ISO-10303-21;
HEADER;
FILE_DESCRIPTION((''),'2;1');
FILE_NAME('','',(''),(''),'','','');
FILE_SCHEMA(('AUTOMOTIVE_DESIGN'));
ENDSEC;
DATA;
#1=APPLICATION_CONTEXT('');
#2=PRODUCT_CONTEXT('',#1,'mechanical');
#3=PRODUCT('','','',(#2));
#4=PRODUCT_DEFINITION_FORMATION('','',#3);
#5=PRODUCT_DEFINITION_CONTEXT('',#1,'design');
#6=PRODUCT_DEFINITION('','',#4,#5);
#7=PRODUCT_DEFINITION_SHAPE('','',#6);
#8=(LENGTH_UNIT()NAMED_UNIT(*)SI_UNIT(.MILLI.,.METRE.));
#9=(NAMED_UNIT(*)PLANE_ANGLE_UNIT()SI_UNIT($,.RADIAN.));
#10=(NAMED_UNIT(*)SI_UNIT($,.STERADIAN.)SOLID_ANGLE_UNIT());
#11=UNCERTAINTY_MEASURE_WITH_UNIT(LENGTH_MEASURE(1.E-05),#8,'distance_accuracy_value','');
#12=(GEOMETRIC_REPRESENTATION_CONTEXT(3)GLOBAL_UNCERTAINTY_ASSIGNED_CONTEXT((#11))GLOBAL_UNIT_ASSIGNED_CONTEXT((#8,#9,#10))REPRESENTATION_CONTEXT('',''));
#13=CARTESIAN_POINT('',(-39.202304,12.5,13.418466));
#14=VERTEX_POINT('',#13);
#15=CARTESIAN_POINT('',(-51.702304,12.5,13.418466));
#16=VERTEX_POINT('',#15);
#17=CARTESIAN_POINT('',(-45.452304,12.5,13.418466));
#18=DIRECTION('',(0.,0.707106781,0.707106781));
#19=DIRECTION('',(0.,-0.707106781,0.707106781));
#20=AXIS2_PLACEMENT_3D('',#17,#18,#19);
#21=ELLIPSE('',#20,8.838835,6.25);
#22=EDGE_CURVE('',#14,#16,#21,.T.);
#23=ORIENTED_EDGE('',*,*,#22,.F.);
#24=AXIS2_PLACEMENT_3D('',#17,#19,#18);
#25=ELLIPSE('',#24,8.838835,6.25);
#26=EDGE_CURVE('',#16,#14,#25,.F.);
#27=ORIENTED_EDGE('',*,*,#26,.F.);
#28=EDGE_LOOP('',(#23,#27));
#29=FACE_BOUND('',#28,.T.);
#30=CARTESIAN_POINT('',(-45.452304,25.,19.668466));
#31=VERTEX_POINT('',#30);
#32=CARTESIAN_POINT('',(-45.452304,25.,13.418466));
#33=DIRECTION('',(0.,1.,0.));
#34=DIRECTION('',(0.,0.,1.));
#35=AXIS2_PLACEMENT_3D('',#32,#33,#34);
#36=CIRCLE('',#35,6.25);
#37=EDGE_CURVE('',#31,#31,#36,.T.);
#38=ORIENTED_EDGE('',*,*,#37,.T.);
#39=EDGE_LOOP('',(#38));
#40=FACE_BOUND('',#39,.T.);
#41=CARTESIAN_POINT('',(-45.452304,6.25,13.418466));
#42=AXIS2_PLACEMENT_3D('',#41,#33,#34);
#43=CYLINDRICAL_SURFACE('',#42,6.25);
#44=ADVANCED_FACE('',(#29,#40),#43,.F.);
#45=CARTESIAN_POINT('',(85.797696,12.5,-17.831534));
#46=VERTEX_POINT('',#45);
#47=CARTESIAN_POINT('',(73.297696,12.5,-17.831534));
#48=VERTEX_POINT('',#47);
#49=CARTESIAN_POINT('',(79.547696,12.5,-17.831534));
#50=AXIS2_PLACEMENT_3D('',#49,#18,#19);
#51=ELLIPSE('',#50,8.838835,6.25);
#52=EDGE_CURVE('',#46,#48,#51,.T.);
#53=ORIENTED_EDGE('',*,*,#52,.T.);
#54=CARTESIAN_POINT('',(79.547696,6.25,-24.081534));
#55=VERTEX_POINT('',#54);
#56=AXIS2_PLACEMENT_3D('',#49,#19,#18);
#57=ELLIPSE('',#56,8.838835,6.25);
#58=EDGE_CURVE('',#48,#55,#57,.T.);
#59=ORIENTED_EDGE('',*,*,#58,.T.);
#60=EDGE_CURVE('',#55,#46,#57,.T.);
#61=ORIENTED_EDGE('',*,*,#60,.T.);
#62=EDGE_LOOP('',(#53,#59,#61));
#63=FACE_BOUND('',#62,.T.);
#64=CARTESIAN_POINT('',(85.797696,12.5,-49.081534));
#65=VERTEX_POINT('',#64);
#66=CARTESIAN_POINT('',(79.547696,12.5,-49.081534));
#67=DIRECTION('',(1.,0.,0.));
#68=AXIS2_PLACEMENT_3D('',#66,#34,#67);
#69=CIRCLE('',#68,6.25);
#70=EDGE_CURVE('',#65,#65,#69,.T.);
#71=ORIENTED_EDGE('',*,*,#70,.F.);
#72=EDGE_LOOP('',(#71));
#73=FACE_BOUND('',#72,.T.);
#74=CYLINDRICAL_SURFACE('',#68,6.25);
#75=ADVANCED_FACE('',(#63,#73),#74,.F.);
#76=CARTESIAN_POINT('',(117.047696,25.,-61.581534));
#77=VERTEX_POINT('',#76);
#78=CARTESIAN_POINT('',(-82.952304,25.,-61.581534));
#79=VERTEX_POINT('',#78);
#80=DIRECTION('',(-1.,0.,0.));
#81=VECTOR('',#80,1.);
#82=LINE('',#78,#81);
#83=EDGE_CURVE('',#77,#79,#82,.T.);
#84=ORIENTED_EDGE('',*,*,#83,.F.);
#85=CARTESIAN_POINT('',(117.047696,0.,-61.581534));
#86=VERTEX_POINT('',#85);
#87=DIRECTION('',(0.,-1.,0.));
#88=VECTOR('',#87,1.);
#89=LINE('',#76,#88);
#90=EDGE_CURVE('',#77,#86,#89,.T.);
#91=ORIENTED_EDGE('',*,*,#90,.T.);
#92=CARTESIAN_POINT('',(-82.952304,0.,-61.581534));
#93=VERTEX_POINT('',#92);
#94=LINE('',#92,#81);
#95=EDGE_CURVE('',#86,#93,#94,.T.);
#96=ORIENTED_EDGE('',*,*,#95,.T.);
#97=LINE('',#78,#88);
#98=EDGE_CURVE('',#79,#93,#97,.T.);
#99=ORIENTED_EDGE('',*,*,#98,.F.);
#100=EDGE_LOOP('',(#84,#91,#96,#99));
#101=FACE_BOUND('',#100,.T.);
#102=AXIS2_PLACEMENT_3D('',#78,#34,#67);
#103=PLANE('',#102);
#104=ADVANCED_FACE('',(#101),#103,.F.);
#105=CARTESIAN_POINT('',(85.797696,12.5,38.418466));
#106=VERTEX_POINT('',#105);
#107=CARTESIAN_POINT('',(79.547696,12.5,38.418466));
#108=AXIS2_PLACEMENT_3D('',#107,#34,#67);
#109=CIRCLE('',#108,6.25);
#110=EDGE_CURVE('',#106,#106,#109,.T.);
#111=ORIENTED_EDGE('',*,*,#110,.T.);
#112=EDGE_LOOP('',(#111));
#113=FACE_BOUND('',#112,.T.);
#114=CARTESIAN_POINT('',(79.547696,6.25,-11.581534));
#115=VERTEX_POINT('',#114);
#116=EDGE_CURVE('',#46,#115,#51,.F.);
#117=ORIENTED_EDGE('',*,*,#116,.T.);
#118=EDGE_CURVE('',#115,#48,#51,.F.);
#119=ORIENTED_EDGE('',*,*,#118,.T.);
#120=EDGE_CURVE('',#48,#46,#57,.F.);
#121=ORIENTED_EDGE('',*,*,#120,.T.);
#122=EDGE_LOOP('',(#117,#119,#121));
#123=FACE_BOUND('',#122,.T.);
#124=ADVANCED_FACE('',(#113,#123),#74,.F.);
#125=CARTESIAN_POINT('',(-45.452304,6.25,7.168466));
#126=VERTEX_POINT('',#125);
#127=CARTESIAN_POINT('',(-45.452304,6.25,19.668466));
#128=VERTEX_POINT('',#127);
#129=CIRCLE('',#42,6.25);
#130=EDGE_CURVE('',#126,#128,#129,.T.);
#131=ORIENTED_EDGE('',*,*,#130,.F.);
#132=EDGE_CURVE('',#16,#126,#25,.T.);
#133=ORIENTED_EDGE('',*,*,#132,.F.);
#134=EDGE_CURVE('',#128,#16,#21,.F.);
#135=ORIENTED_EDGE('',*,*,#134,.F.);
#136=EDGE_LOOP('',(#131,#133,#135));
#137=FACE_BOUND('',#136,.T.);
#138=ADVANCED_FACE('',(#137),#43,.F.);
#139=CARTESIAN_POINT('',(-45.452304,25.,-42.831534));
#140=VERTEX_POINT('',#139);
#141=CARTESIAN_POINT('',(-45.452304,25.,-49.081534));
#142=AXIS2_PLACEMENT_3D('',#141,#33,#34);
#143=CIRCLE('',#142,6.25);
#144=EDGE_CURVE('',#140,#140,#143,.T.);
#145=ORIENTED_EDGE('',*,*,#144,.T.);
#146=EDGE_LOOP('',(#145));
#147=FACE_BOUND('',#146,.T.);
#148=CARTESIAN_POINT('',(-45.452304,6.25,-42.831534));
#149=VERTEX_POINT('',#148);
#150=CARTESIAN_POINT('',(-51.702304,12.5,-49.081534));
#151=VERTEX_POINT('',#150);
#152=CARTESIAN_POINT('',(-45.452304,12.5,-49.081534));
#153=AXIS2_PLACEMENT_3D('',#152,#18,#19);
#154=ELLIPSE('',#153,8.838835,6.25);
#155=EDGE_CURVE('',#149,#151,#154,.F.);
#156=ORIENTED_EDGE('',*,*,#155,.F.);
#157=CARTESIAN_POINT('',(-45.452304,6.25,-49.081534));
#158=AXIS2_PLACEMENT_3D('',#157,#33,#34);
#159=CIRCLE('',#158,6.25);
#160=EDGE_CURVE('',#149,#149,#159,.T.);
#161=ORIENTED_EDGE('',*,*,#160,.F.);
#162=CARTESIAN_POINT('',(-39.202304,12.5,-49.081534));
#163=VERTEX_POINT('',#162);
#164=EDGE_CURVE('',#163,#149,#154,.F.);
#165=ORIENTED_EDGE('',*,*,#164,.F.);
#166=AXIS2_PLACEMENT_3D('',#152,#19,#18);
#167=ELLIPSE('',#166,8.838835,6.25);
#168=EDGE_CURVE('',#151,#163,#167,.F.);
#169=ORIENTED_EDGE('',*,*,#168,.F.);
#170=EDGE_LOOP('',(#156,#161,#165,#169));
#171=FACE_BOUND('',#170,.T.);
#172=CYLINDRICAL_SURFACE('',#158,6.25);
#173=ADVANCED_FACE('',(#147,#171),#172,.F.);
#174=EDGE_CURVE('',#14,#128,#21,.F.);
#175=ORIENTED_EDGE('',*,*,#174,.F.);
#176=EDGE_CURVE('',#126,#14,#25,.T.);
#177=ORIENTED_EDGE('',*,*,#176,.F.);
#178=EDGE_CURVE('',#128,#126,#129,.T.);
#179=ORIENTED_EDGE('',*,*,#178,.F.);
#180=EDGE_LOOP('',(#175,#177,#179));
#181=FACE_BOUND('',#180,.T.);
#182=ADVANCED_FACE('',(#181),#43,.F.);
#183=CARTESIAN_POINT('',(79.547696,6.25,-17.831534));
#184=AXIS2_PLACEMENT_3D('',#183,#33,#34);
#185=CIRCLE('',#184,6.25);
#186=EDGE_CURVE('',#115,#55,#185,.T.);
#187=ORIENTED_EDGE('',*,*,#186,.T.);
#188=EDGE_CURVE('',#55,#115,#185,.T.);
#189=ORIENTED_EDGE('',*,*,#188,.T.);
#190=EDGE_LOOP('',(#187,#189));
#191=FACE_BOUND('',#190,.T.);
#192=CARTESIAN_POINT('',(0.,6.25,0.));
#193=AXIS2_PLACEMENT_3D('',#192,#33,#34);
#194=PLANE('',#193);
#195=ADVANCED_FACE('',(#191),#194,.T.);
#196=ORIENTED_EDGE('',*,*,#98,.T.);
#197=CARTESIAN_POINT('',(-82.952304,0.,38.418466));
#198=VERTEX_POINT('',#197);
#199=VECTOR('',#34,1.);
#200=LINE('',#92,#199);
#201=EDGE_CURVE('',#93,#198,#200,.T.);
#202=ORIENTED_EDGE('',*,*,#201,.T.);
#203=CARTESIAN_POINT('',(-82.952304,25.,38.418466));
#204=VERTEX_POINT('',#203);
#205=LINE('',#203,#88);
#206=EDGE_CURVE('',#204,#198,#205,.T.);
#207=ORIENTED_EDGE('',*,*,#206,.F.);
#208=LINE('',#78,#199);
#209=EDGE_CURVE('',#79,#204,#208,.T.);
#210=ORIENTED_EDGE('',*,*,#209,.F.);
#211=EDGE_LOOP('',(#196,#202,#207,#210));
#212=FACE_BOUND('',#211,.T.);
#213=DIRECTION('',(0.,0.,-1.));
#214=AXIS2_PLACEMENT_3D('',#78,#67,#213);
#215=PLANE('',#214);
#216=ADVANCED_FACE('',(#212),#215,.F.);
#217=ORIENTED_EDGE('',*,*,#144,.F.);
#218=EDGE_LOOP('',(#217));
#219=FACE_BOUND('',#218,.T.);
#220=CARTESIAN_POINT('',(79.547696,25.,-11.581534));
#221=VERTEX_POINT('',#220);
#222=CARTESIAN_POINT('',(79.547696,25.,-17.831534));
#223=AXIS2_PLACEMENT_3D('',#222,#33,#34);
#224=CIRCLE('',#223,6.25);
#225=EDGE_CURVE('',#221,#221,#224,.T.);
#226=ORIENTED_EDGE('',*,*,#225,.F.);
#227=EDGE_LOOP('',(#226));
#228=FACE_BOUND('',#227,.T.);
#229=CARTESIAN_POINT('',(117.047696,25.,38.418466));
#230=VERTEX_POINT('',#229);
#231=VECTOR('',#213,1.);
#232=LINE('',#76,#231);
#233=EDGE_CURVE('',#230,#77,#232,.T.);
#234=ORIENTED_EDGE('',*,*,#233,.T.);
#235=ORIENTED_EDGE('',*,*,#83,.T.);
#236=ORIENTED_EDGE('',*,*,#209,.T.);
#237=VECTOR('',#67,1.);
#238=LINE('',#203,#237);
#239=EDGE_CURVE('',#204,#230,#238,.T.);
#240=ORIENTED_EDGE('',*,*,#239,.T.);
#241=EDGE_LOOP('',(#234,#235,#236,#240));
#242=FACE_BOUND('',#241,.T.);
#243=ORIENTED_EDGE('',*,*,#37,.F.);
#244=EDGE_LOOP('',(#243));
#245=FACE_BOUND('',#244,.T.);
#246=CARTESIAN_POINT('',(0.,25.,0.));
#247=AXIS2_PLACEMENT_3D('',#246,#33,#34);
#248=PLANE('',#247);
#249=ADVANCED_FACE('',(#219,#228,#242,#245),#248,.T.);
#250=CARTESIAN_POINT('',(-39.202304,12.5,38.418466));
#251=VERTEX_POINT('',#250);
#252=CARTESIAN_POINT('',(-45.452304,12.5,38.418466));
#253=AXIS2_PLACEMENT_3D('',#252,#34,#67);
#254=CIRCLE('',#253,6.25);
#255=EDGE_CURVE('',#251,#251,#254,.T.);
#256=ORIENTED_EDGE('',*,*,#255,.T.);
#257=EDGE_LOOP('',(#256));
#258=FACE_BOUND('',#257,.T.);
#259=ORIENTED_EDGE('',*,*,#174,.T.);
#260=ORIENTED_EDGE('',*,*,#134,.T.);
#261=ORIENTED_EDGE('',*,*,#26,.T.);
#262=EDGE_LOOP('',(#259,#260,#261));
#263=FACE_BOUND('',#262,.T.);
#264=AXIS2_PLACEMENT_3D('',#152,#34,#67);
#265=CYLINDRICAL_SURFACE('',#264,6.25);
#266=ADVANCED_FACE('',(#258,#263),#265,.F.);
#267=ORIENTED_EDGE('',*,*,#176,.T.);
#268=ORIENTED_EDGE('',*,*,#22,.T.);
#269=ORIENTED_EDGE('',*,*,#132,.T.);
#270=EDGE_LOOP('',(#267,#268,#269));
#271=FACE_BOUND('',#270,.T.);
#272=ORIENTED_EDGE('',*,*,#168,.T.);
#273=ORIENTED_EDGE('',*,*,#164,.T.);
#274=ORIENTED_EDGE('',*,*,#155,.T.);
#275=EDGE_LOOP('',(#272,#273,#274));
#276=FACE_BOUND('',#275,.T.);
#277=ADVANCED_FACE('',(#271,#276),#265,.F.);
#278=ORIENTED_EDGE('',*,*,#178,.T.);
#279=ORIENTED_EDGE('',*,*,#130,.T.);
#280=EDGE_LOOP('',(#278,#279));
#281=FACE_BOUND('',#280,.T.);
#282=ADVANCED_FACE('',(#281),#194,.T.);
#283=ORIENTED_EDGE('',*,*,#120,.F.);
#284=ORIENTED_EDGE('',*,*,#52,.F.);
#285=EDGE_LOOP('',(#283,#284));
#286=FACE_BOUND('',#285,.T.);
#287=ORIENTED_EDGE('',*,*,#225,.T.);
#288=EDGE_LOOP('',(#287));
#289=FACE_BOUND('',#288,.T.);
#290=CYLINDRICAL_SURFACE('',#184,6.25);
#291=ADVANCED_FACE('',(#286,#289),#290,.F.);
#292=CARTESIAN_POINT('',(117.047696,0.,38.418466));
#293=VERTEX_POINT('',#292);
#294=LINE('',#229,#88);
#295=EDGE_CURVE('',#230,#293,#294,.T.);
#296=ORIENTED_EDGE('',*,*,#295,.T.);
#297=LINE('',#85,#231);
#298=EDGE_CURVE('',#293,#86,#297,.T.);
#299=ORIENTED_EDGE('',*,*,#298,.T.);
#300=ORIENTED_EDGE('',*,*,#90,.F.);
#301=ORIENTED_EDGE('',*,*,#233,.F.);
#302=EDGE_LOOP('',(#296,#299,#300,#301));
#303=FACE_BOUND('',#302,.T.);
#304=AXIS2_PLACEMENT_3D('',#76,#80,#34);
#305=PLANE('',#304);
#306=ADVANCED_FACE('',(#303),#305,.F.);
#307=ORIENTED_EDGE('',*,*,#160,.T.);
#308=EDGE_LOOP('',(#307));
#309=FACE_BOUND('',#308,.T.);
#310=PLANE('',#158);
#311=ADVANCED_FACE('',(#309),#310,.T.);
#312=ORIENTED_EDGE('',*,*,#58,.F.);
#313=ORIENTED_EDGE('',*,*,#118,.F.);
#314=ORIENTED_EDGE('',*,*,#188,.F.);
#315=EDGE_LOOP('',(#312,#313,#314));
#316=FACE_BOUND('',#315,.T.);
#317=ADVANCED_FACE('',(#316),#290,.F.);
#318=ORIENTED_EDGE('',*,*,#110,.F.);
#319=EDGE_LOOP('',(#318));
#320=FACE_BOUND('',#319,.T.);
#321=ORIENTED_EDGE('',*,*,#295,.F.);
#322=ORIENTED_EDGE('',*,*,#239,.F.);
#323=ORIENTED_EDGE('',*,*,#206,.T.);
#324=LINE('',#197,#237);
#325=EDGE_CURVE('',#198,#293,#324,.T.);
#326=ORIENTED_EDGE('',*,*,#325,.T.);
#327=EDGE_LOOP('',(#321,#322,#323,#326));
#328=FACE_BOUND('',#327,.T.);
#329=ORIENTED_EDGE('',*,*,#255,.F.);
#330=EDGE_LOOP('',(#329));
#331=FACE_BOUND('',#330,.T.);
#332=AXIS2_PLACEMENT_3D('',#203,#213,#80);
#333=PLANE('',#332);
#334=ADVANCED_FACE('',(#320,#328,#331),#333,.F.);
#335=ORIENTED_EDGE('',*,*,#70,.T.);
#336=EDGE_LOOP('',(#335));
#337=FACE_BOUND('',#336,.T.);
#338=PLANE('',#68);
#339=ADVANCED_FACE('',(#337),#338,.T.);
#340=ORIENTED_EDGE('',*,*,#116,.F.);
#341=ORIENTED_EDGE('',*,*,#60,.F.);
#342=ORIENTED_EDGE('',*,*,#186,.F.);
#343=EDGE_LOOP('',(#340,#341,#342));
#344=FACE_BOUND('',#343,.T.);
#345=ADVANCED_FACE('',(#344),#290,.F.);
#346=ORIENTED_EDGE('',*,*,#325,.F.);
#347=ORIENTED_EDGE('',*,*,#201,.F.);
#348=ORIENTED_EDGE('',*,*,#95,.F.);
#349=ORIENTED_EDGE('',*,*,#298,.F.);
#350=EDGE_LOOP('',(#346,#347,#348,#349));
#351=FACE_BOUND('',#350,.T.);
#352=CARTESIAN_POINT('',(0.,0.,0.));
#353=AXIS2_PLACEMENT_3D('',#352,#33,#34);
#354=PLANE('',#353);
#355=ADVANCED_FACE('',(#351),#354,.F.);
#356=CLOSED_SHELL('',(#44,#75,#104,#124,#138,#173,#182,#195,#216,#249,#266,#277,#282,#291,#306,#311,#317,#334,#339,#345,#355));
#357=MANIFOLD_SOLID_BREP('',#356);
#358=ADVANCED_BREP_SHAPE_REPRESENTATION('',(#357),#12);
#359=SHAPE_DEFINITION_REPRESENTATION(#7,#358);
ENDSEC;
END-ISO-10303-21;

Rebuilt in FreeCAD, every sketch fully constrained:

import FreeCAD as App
import Part
import Sketcher
from FreeCAD import Vector


def add_polygon(sketch, points):
    """Adds a closed chain of lines whose ends are joined by coincident constraints."""
    first, n = sketch.GeometryCount, len(points)
    for a, b in zip(points, points[1:] + points[:1]):
        sketch.addGeometry(Part.LineSegment(App.Vector(*a, 0), App.Vector(*b, 0)), False)
    for i in range(n):
        sketch.addConstraint(Sketcher.Constraint("Coincident", first + i, 2, first + (i + 1) % n, 1))

doc = App.newDocument("Part")
body = doc.addObject("PartDesign::Body", "Body")

sketch1 = doc.addObject("Sketcher::SketchObject", "Sketch")
body.addObject(sketch1)
sketch1.AttachmentSupport = (doc.XZ_Plane, [""])
sketch1.MapMode = "FlatFace"
add_polygon(sketch1, [(-83, -62), (-83, 38), (117, 38), (117, -62)])
sketch1.addConstraint([
    Sketcher.Constraint("Vertical", 0),
    Sketcher.Constraint("Horizontal", 1),
    Sketcher.Constraint("Vertical", 2),
    Sketcher.Constraint("Horizontal", 3),
    Sketcher.Constraint("DistanceX", 1, 1, 1, 2, 200.0),
    Sketcher.Constraint("DistanceY", 0, 1, 0, 2, 100.0),
    Sketcher.Constraint("DistanceX", 0, 2, -1, 1, 82.952304),
    Sketcher.Constraint("DistanceY", -1, 1, 0, 2, 38.418466),
])
pad1 = doc.addObject("PartDesign::Pad", "Pad")
body.addObject(pad1)
pad1.Profile = sketch1
pad1.Length = 25
pad1.Reversed = True

sketch2 = doc.addObject("Sketcher::SketchObject", "Sketch001")
body.addObject(sketch2)
sketch2.AttachmentSupport = (doc.XY_Plane, [""])
sketch2.MapMode = "FlatFace"
sketch2.AttachmentOffset = App.Placement(Vector(0, 0, 38.418466), App.Rotation())
sketch2.addGeometry([
    Part.Circle(Vector(-45, 12, 0), Vector(0, 0, 1), 6),
    Part.Circle(Vector(80, 12, 0), Vector(0, 0, 1), 6),
], False)
sketch2.addConstraint([
    Sketcher.Constraint("Equal", 0, 1),
    Sketcher.Constraint("Horizontal", 0, 3, 1, 3),
    Sketcher.Constraint("Diameter", 0, 12.5),
    Sketcher.Constraint("DistanceX", 0, 3, 1, 3, 125.0),
    Sketcher.Constraint("DistanceY", -1, 1, 0, 3, 12.5),
    Sketcher.Constraint("DistanceX", 0, 3, -1, 1, 45.452304),
])
pocket1 = doc.addObject("PartDesign::Pocket", "Pocket")
body.addObject(pocket1)
pocket1.Profile = sketch2
pocket1.Length = 87.5

sketch3 = doc.addObject("Sketcher::SketchObject", "Sketch002")
body.addObject(sketch3)
sketch3.AttachmentSupport = (doc.XZ_Plane, [""])
sketch3.MapMode = "FlatFace"
sketch3.AttachmentOffset = App.Placement(Vector(0, 0, -25), App.Rotation())
sketch3.addGeometry([
    Part.Circle(Vector(-45, 13, 0), Vector(0, 0, 1), 6),
    Part.Circle(Vector(-45, -49, 0), Vector(0, 0, 1), 6),
    Part.Circle(Vector(80, -18, 0), Vector(0, 0, 1), 6),
], False)
sketch3.addConstraint([
    Sketcher.Constraint("Equal", 0, 1),
    Sketcher.Constraint("Equal", 1, 2),
    Sketcher.Constraint("Vertical", 0, 3, 1, 3),
    Sketcher.Constraint("Diameter", 0, 12.5),
    Sketcher.Constraint("DistanceX", 0, 3, 2, 3, 125.0),
    Sketcher.Constraint("DistanceY", 1, 3, 0, 3, 62.5),
    Sketcher.Constraint("DistanceY", 2, 3, 0, 3, 31.25),
    Sketcher.Constraint("DistanceX", 0, 3, -1, 1, 45.452304),
    Sketcher.Constraint("DistanceY", -1, 1, 0, 3, 13.418466),
])
pocket2 = doc.addObject("PartDesign::Pocket", "Pocket001")
body.addObject(pocket2)
pocket2.Profile = sketch3
pocket2.Length = 18.75
pocket2.Reversed = True

doc.recompute()
